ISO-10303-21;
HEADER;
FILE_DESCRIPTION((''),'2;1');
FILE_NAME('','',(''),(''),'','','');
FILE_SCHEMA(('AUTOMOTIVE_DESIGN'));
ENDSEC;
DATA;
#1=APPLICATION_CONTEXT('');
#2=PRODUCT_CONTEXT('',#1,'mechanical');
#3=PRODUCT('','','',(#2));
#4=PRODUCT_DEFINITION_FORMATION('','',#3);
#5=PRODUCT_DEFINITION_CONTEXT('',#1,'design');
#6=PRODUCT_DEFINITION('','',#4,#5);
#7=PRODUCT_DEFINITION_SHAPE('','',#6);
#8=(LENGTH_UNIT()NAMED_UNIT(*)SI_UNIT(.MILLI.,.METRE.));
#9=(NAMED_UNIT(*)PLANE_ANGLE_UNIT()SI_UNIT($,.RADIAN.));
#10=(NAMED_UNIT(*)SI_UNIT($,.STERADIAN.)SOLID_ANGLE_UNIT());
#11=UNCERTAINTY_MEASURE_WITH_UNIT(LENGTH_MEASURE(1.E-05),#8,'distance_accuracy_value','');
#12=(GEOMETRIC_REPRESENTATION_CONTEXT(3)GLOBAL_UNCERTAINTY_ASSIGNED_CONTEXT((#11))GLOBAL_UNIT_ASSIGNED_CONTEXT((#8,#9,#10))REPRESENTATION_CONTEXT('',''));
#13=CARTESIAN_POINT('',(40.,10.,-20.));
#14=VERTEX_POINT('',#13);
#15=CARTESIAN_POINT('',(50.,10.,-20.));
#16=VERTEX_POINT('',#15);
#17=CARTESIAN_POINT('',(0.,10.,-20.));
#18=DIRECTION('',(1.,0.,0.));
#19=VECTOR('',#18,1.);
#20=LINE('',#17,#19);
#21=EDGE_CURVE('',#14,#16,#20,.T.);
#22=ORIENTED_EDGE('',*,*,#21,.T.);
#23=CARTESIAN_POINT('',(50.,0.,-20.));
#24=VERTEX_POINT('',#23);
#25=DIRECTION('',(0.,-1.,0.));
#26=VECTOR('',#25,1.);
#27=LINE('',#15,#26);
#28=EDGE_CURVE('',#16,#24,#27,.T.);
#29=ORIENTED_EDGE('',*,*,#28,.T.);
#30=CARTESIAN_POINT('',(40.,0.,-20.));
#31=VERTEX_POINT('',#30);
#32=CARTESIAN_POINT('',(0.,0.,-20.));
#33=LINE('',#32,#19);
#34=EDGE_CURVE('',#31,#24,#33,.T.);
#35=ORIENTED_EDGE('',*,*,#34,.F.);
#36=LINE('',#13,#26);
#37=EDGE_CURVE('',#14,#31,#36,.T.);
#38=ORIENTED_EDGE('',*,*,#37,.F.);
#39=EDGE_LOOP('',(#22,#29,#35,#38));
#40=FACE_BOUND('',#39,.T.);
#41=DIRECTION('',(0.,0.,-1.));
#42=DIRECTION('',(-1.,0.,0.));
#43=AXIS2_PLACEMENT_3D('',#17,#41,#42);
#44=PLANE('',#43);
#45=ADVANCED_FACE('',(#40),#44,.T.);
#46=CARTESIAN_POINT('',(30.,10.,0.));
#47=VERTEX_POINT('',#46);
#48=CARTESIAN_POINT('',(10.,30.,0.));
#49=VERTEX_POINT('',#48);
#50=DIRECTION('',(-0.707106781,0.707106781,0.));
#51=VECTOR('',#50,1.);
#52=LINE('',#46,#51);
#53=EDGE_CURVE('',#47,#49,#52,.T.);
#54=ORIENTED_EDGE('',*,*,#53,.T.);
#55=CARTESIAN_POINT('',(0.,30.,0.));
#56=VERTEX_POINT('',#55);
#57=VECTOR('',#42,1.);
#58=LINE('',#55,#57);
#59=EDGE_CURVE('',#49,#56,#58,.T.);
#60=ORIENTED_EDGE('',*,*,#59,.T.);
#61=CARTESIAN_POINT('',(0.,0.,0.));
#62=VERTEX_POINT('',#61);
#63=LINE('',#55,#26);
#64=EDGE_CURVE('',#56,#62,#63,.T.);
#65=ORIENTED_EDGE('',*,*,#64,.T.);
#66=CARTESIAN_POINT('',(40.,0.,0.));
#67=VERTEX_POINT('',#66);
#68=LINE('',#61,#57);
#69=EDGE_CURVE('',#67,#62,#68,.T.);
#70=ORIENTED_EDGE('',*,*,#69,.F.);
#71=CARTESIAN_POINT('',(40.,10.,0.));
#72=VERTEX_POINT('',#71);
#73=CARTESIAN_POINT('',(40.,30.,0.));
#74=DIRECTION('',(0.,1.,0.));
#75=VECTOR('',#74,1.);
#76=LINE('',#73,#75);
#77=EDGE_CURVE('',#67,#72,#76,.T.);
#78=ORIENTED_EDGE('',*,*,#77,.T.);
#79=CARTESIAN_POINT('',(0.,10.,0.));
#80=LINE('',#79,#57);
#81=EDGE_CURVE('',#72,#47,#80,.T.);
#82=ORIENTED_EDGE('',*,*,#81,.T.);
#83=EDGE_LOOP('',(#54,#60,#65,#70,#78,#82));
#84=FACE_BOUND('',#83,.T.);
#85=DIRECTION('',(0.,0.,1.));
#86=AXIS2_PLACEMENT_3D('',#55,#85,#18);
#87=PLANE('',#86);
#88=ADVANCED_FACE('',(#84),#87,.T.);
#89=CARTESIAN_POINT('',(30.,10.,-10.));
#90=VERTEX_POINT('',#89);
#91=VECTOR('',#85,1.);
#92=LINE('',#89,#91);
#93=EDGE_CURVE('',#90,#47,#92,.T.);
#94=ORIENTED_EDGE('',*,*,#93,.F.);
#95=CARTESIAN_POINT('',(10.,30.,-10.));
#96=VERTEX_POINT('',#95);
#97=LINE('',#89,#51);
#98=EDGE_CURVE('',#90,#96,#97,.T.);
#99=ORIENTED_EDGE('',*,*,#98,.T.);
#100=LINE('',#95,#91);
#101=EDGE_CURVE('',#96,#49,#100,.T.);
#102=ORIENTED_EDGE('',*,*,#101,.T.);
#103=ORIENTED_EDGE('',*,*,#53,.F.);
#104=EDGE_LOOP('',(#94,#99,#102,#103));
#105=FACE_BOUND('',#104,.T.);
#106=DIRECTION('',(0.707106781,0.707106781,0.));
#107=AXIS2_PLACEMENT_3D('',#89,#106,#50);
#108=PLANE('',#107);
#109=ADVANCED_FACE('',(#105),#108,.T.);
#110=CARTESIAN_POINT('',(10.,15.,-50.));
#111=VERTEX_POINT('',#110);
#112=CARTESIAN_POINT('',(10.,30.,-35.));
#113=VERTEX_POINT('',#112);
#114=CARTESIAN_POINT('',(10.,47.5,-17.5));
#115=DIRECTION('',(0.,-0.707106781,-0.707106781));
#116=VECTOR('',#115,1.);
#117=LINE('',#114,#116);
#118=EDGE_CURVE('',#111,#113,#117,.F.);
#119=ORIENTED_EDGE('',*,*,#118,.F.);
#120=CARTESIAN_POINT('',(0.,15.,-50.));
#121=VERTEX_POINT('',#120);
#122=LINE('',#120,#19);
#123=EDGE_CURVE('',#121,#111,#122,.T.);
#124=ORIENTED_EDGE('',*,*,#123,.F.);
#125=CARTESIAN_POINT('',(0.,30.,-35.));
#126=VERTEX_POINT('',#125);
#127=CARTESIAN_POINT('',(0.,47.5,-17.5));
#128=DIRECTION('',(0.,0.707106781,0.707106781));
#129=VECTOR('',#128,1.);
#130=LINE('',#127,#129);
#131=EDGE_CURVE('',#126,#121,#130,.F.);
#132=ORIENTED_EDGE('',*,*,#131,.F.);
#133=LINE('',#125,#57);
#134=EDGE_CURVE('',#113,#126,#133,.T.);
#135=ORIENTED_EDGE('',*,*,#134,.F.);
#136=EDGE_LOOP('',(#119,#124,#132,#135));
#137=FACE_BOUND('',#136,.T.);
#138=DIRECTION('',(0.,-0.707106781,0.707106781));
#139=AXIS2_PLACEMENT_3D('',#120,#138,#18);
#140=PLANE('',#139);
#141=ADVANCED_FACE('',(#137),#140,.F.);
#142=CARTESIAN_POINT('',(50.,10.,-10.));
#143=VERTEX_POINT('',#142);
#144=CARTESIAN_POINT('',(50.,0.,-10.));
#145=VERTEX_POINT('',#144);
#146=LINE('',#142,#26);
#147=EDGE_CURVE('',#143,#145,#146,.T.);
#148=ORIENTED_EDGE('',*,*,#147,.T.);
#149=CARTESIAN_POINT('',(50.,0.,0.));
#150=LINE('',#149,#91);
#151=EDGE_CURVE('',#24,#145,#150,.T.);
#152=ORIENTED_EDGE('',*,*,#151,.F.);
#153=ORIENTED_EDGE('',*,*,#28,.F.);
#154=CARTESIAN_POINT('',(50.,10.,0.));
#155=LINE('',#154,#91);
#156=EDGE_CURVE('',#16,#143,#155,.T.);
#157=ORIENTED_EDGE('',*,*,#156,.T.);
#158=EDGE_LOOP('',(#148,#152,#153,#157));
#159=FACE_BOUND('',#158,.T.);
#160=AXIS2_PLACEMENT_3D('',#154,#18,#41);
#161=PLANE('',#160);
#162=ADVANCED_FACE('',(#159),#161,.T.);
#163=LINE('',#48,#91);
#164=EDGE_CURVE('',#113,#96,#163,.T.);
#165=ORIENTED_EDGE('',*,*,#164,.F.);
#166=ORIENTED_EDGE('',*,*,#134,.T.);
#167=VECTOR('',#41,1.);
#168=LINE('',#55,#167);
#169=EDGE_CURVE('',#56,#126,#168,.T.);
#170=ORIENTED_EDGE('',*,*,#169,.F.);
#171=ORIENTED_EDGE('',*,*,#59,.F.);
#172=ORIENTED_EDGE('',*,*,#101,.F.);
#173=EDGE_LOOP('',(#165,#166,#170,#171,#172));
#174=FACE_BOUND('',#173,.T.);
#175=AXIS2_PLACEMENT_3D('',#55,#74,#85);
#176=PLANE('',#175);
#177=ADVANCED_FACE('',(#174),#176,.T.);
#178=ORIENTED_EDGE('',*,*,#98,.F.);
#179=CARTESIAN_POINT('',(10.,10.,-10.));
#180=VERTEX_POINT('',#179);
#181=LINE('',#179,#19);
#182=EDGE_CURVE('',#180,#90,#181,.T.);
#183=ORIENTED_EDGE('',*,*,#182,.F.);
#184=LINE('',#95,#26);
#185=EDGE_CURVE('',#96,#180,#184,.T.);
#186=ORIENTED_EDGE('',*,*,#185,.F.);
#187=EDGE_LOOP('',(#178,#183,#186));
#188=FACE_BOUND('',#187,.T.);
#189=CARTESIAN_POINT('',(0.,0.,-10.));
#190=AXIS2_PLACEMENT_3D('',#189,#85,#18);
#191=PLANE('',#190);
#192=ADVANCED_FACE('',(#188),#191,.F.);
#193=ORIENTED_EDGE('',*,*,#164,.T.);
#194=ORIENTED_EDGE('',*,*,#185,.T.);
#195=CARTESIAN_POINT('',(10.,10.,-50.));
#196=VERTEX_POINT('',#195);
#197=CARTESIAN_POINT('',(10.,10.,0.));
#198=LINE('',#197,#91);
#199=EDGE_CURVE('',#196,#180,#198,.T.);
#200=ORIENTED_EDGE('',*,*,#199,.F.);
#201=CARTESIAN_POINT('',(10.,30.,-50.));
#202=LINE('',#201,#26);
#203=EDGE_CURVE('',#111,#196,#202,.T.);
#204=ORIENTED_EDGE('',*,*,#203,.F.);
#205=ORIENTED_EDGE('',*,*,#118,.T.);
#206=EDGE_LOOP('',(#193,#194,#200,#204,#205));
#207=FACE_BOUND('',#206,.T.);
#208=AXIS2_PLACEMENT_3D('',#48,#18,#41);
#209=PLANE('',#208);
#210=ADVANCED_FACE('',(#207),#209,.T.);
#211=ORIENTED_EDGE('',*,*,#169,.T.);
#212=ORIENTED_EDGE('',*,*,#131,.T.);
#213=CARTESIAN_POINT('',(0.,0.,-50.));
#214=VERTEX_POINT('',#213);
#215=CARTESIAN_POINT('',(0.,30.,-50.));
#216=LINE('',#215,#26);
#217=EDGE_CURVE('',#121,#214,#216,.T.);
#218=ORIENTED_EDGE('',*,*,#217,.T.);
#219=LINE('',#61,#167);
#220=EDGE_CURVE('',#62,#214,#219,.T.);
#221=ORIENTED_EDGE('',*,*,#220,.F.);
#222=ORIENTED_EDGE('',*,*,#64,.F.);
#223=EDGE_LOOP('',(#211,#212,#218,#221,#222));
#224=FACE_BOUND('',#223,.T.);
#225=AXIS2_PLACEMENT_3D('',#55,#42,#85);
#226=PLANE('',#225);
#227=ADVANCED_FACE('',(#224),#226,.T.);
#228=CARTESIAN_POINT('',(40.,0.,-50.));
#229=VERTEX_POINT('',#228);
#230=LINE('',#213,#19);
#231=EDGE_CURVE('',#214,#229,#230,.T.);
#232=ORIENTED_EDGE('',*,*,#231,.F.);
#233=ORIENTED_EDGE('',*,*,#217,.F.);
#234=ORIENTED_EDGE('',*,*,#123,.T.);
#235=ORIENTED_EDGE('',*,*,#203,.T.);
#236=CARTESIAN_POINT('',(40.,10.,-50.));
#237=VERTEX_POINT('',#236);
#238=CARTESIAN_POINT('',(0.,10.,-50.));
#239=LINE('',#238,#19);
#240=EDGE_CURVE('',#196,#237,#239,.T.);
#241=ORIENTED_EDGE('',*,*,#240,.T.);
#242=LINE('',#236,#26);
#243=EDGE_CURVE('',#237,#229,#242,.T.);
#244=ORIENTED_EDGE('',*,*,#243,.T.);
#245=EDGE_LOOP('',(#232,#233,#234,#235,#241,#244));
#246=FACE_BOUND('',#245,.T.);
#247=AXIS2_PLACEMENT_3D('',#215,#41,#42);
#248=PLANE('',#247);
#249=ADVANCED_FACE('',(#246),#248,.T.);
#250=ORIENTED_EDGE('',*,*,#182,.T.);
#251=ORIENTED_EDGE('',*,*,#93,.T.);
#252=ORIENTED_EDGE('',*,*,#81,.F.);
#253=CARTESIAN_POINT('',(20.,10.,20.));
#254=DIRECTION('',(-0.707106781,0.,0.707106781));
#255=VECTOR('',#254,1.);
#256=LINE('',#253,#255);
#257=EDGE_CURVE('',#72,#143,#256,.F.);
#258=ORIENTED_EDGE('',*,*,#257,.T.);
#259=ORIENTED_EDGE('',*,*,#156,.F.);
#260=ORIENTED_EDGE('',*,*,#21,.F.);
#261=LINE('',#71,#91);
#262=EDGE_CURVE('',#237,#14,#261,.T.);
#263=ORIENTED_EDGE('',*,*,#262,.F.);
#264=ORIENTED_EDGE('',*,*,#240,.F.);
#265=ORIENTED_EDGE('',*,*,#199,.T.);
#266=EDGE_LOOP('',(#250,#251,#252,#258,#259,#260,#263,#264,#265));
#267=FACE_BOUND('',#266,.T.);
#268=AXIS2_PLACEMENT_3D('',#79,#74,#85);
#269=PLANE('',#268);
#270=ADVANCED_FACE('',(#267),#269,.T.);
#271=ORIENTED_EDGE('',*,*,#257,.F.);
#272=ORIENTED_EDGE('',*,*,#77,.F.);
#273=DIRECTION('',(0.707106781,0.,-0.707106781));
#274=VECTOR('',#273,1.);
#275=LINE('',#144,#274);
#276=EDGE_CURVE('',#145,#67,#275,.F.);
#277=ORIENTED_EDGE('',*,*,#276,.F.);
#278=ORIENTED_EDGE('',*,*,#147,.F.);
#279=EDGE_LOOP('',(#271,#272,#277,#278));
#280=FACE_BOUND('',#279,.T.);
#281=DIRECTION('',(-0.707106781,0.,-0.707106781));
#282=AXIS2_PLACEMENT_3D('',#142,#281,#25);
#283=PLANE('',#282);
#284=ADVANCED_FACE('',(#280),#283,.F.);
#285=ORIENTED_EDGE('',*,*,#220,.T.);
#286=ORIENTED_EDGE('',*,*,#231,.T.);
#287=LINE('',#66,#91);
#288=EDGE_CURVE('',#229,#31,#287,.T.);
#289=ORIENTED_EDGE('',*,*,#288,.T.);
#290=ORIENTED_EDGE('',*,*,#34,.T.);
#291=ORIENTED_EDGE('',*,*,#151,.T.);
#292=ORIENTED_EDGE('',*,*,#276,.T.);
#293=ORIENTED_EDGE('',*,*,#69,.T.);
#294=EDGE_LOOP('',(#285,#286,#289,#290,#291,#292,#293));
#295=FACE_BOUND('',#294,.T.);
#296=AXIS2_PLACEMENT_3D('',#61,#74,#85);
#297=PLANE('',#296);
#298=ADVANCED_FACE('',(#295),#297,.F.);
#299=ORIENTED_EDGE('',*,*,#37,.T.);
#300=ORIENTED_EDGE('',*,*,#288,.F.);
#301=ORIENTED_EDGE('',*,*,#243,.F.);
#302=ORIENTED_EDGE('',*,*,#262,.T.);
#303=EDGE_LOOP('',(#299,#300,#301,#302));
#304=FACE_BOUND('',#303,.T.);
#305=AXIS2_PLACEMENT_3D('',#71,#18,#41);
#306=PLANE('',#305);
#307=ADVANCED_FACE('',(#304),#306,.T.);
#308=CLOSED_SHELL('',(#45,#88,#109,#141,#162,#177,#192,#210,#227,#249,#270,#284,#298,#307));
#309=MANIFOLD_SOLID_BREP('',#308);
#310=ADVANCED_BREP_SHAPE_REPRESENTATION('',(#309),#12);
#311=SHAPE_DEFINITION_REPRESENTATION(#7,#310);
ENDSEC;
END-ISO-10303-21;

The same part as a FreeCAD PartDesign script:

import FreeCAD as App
import Part
import Sketcher
from FreeCAD import Vector


def edges_at(feature, points):
    """Names of the edges that pass closest to the given points."""
    edges = feature.Shape.Edges
    near = lambda p: min(range(len(edges)), key=lambda i: edges[i].distToShape(Part.Vertex(*p))[0])
    return sorted({f"Edge{near(p) + 1}" for p in points})


def add_polygon(sketch, points):
    """Adds a closed chain of lines whose ends are joined by coincident constraints."""
    first, n = sketch.GeometryCount, len(points)
    for a, b in zip(points, points[1:] + points[:1]):
        sketch.addGeometry(Part.LineSegment(App.Vector(*a, 0), App.Vector(*b, 0)), False)
    for i in range(n):
        sketch.addConstraint(Sketcher.Constraint("Coincident", first + i, 2, first + (i + 1) % n, 1))

doc = App.newDocument("Part")
body = doc.addObject("PartDesign::Body", "Body")

sketch1 = body.newObject("Sketcher::SketchObject", "Sketch")
sketch1.AttachmentSupport = (doc.getObject("XZ_Plane"), [""])
sketch1.MapMode = "FlatFace"
add_polygon(sketch1, [(0, -50), (0, 0), (10, 0), (10, -50)])
sketch1.addConstraint(Sketcher.Constraint("Vertical", 0))
sketch1.addConstraint(Sketcher.Constraint("Horizontal", 1))
sketch1.addConstraint(Sketcher.Constraint("Vertical", 2))
sketch1.addConstraint(Sketcher.Constraint("Horizontal", 3))
sketch1.addConstraint(Sketcher.Constraint("Coincident", 0, 2, -1, 1))
sketch1.addConstraint(Sketcher.Constraint("DistanceX", 1, 1, 1, 2, 10.0))
sketch1.addConstraint(Sketcher.Constraint("DistanceY", 0, 1, 0, 2, 50.0))
pad1 = body.newObject("PartDesign::Pad", "Pad")
pad1.Profile = sketch1
pad1.Length = 30
pad1.Reversed = True

sketch2 = body.newObject("Sketcher::SketchObject", "Sketch001")
sketch2.AttachmentSupport = (doc.getObject("XZ_Plane"), [""])
sketch2.MapMode = "FlatFace"
add_polygon(sketch2, [(10, -50), (10, 0), (50, 0), (50, -20), (40, -20), (40, -50)])
sketch2.addConstraint(Sketcher.Constraint("Vertical", 0))
sketch2.addConstraint(Sketcher.Constraint("Horizontal", 1))
sketch2.addConstraint(Sketcher.Constraint("Vertical", 2))
sketch2.addConstraint(Sketcher.Constraint("Horizontal", 3))
sketch2.addConstraint(Sketcher.Constraint("Vertical", 4))
sketch2.addConstraint(Sketcher.Constraint("Horizontal", 5))
sketch2.addConstraint(Sketcher.Constraint("PointOnObject", 0, 2, -1))
sketch2.addConstraint(Sketcher.Constraint("Equal", 5, 4))
sketch2.addConstraint(Sketcher.Constraint("DistanceX", 1, 1, 1, 2, 40.0))
sketch2.addConstraint(Sketcher.Constraint("DistanceX", 3, 2, 3, 1, 10.0))
sketch2.addConstraint(Sketcher.Constraint("DistanceY", 0, 1, 0, 2, 50.0))
sketch2.addConstraint(Sketcher.Constraint("DistanceX", -1, 1, 0, 2, 10.0))
pad2 = body.newObject("PartDesign::Pad", "Pad001")
pad2.Profile = sketch2
pad2.Length = 10
pad2.Reversed = True
doc.recompute()

chamfer = body.newObject("PartDesign::Chamfer", "Chamfer")
chamfer.Base = (pad2, edges_at(pad2, [(50, 5, 0)]))
chamfer.Size = 10
doc.recompute()

chamfer2 = body.newObject("PartDesign::Chamfer", "Chamfer001")
chamfer2.Base = (chamfer, edges_at(chamfer, [(5, 30, -50)]))
chamfer2.Size = 15

sketch3 = body.newObject("Sketcher::SketchObject", "Sketch002")
sketch3.AttachmentSupport = (doc.getObject("XY_Plane"), [""])
sketch3.MapMode = "FlatFace"
add_polygon(sketch3, [(10, 10), (30, 10), (10, 30)])
sketch3.addConstraint(Sketcher.Constraint("Horizontal", 0))
sketch3.addConstraint(Sketcher.Constraint("Vertical", 2))
sketch3.addConstraint(Sketcher.Constraint("Equal", 0, 2))
sketch3.addConstraint(Sketcher.Constraint("DistanceX", 0, 1, 0, 2, 20.0))
sketch3.addConstraint(Sketcher.Constraint("DistanceX", -1, 1, 0, 2, 30.0))
sketch3.addConstraint(Sketcher.Constraint("DistanceY", -1, 1, 0, 2, 10.0))
pad3 = body.newObject("PartDesign::Pad", "Pad002")
pad3.Profile = sketch3
pad3.Length = 10
pad3.Reversed = True

doc.recompute()
